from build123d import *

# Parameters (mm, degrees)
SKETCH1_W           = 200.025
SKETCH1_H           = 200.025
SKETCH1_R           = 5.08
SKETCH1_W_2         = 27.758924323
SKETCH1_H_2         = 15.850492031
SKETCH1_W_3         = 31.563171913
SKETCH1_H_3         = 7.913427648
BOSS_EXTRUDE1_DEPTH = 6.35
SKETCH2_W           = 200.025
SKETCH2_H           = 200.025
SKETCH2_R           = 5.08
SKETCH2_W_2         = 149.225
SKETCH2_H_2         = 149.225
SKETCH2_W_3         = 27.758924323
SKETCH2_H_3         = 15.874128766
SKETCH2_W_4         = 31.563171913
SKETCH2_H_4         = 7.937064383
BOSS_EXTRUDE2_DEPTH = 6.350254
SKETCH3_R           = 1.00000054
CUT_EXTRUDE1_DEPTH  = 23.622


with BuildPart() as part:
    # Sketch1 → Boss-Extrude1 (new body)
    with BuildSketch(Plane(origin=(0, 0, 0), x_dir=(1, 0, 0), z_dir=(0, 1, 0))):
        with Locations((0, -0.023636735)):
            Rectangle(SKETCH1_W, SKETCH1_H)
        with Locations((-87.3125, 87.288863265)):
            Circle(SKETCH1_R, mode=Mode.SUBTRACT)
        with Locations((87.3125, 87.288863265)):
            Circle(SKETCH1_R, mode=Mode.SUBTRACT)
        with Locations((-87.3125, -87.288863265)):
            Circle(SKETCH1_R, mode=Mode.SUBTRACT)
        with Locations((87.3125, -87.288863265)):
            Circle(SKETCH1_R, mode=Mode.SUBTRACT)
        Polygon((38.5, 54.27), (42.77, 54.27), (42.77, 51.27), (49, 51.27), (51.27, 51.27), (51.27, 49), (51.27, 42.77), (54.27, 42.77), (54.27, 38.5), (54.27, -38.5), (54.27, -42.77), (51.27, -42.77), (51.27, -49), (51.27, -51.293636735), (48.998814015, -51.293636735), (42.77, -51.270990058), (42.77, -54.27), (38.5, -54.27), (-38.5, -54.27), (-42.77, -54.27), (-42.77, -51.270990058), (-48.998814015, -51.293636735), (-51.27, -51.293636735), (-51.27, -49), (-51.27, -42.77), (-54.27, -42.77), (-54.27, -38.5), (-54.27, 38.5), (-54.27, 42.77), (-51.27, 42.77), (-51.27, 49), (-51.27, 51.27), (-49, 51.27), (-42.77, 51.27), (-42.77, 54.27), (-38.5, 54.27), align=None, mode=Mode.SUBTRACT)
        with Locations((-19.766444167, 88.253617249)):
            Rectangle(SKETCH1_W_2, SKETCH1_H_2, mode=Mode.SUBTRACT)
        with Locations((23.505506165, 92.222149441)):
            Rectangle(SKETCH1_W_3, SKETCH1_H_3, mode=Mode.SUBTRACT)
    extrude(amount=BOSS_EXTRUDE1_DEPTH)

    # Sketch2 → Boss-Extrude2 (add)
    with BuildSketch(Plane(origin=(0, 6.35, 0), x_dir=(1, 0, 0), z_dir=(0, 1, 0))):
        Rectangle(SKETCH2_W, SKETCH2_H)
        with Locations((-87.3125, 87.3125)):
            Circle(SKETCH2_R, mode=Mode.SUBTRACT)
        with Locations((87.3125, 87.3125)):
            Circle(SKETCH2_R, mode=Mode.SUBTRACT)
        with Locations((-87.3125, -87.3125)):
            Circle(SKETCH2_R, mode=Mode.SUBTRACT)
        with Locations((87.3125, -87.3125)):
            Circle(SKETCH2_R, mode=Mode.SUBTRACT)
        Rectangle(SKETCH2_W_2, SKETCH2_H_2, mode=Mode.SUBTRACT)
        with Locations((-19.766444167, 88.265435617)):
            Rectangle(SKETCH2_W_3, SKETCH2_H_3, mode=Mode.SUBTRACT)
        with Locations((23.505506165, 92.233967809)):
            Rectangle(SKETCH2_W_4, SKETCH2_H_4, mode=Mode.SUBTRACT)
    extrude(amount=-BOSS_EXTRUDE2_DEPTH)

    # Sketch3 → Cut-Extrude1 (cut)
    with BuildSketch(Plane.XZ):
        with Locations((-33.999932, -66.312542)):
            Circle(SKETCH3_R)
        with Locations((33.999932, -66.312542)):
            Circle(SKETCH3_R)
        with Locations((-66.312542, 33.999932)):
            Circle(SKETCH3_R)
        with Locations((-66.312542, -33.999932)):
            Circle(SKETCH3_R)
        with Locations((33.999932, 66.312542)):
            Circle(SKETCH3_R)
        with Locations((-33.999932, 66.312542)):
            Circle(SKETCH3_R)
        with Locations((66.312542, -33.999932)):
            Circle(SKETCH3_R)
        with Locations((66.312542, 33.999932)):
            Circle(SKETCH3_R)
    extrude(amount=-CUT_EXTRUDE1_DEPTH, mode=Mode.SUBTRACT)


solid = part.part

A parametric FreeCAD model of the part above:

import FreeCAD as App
import Part
import Sketcher
Q = App.Units.Quantity

doc = App.newDocument("Part")
body = doc.addObject("PartDesign::Body", "Body")

# Sketch on XZ plane
sketch1 = body.newObject("Sketcher::SketchObject", "Sketch")
sketch1.AttachmentSupport = (doc.getObject("XZ_Plane"), [""])
sketch1.MapMode = "FlatFace"
sketch1.addGeometry([
    Part.LineSegment(App.Vector(-100, -100, 0), App.Vector(-100, 100, 0)),  # 0
    Part.LineSegment(App.Vector(-100, 100, 0), App.Vector(100, 100, 0)),  # 1
    Part.LineSegment(App.Vector(100, 100, 0), App.Vector(100, -100, 0)),  # 2
    Part.LineSegment(App.Vector(100, -100, 0), App.Vector(-100, -100, 0)),  # 3
    Part.Circle(App.Vector(-87.3, 87.3, 0), App.Vector(0, 0, 1), 5.1),  # 4
    Part.Circle(App.Vector(87.3, 87.3, 0), App.Vector(0, 0, 1), 5.1),  # 5
    Part.LineSegment(App.Vector(-42.8, -54.3, 0), App.Vector(42.8, -54.3, 0)),  # 6
    Part.LineSegment(App.Vector(42.8, -54.3, 0), App.Vector(42.8, -51.3, 0)),  # 7
    Part.LineSegment(App.Vector(42.8, -51.3, 0), App.Vector(51.3, -51.3, 0)),  # 8
    Part.LineSegment(App.Vector(51.3, -51.3, 0), App.Vector(51.3, -42.8, 0)),  # 9
    Part.LineSegment(App.Vector(51.3, -42.8, 0), App.Vector(54.3, -42.8, 0)),  # 10
    Part.LineSegment(App.Vector(54.3, -42.8, 0), App.Vector(54.3, 42.8, 0)),  # 11
    Part.LineSegment(App.Vector(54.3, 42.8, 0), App.Vector(51.3, 42.8, 0)),  # 12
    Part.LineSegment(App.Vector(51.3, 42.8, 0), App.Vector(51.3, 51.3, 0)),  # 13
    Part.LineSegment(App.Vector(51.3, 51.3, 0), App.Vector(49, 51.3, 0)),  # 14
    Part.LineSegment(App.Vector(49, 51.3, 0), App.Vector(42.8, 51.3, 0)),  # 15
    Part.LineSegment(App.Vector(42.8, 51.3, 0), App.Vector(42.8, 54.3, 0)),  # 16
    Part.LineSegment(App.Vector(42.8, 54.3, 0), App.Vector(-42.8, 54.3, 0)),  # 17
    Part.LineSegment(App.Vector(-42.8, 54.3, 0), App.Vector(-42.8, 51.3, 0)),  # 18
    Part.LineSegment(App.Vector(-42.8, 51.3, 0), App.Vector(-49, 51.3, 0)),  # 19
    Part.LineSegment(App.Vector(-49, 51.3, 0), App.Vector(-51.3, 51.3, 0)),  # 20
    Part.LineSegment(App.Vector(-51.3, 51.3, 0), App.Vector(-51.3, 42.8, 0)),  # 21
    Part.LineSegment(App.Vector(-51.3, 42.8, 0), App.Vector(-54.3, 42.8, 0)),  # 22
    Part.LineSegment(App.Vector(-54.3, 42.8, 0), App.Vector(-54.3, -42.8, 0)),  # 23
    Part.LineSegment(App.Vector(-54.3, -42.8, 0), App.Vector(-51.3, -42.8, 0)),  # 24
    Part.LineSegment(App.Vector(-51.3, -42.8, 0), App.Vector(-51.3, -51.3, 0)),  # 25
    Part.LineSegment(App.Vector(-51.3, -51.3, 0), App.Vector(-42.8, -51.3, 0)),  # 26
    Part.LineSegment(App.Vector(-42.8, -51.3, 0), App.Vector(-42.8, -54.3, 0)),  # 27
    Part.Circle(App.Vector(-87.3, -87.3, 0), App.Vector(0, 0, 1), 5.1),  # 28
    Part.LineSegment(App.Vector(-5.9, -80.3, 0), App.Vector(-33.6, -80.3, 0)),  # 29
    Part.LineSegment(App.Vector(-33.6, -80.3, 0), App.Vector(-33.6, -96.2, 0)),  # 30
    Part.LineSegment(App.Vector(-33.6, -96.2, 0), App.Vector(-5.9, -96.2, 0)),  # 31
    Part.LineSegment(App.Vector(-5.9, -96.2, 0), App.Vector(-5.9, -80.3, 0)),  # 32
    Part.LineSegment(App.Vector(39.3, -88.3, 0), App.Vector(7.7, -88.3, 0)),  # 33
    Part.LineSegment(App.Vector(7.7, -88.3, 0), App.Vector(7.7, -96.2, 0)),  # 34
    Part.LineSegment(App.Vector(7.7, -96.2, 0), App.Vector(39.3, -96.2, 0)),  # 35
    Part.LineSegment(App.Vector(39.3, -96.2, 0), App.Vector(39.3, -88.3, 0)),  # 36
    Part.Circle(App.Vector(87.3, -87.3, 0), App.Vector(0, 0, 1), 5.1),  # 37
], False)
sketch1.addConstraint([
    Sketcher.Constraint("Coincident", 0, 2, 1, 1),
    Sketcher.Constraint("Coincident", 1, 2, 2, 1),
    Sketcher.Constraint("Coincident", 2, 2, 3, 1),
    Sketcher.Constraint("Coincident", 3, 2, 0, 1),
    Sketcher.Constraint("Coincident", 6, 2, 7, 1),
    Sketcher.Constraint("Coincident", 7, 2, 8, 1),
    Sketcher.Constraint("Coincident", 8, 2, 9, 1),
    Sketcher.Constraint("Coincident", 9, 2, 10, 1),
    Sketcher.Constraint("Coincident", 10, 2, 11, 1),
    Sketcher.Constraint("Coincident", 11, 2, 12, 1),
    Sketcher.Constraint("Coincident", 12, 2, 13, 1),
    Sketcher.Constraint("Coincident", 13, 2, 14, 1),
    Sketcher.Constraint("Coincident", 14, 2, 15, 1),
    Sketcher.Constraint("Coincident", 15, 2, 16, 1),
    Sketcher.Constraint("Coincident", 16, 2, 17, 1),
    Sketcher.Constraint("Coincident", 17, 2, 18, 1),
    Sketcher.Constraint("Coincident", 18, 2, 19, 1),
    Sketcher.Constraint("Coincident", 19, 2, 20, 1),
    Sketcher.Constraint("Coincident", 20, 2, 21, 1),
    Sketcher.Constraint("Coincident", 21, 2, 22, 1),
    Sketcher.Constraint("Coincident", 22, 2, 23, 1),
    Sketcher.Constraint("Coincident", 23, 2, 24, 1),
    Sketcher.Constraint("Coincident", 24, 2, 25, 1),
    Sketcher.Constraint("Coincident", 25, 2, 26, 1),
    Sketcher.Constraint("Coincident", 26, 2, 27, 1),
    Sketcher.Constraint("Coincident", 27, 2, 6, 1),
    Sketcher.Constraint("Coincident", 29, 2, 30, 1),
    Sketcher.Constraint("Coincident", 30, 2, 31, 1),
    Sketcher.Constraint("Coincident", 31, 2, 32, 1),
    Sketcher.Constraint("Coincident", 32, 2, 29, 1),
    Sketcher.Constraint("Coincident", 33, 2, 34, 1),
    Sketcher.Constraint("Coincident", 34, 2, 35, 1),
    Sketcher.Constraint("Coincident", 35, 2, 36, 1),
    Sketcher.Constraint("Coincident", 36, 2, 33, 1),
    Sketcher.Constraint("Vertical", 0),
    Sketcher.Constraint("Horizontal", 1),
    Sketcher.Constraint("Vertical", 2),
    Sketcher.Constraint("Horizontal", 3),
    Sketcher.Constraint("Horizontal", 6),
    Sketcher.Constraint("Vertical", 7),
    Sketcher.Constraint("Horizontal", 8),
    Sketcher.Constraint("Vertical", 9),
    Sketcher.Constraint("Horizontal", 10),
    Sketcher.Constraint("Vertical", 11),
    Sketcher.Constraint("Horizontal", 12),
    Sketcher.Constraint("Vertical", 13),
    Sketcher.Constraint("Horizontal", 14),
    Sketcher.Constraint("Vertical", 16),
    Sketcher.Constraint("Horizontal", 17),
    Sketcher.Constraint("Vertical", 18),
    Sketcher.Constraint("Horizontal", 20),
    Sketcher.Constraint("Vertical", 21),
    Sketcher.Constraint("Horizontal", 22),
    Sketcher.Constraint("Vertical", 23),
    Sketcher.Constraint("Horizontal", 24),
    Sketcher.Constraint("Vertical", 25),
    Sketcher.Constraint("Horizontal", 26),
    Sketcher.Constraint("Vertical", 27),
    Sketcher.Constraint("Horizontal", 29),
    Sketcher.Constraint("Vertical", 30),
    Sketcher.Constraint("Horizontal", 31),
    Sketcher.Constraint("Vertical", 32),
    Sketcher.Constraint("Horizontal", 33),
    Sketcher.Constraint("Vertical", 34),
    Sketcher.Constraint("Horizontal", 35),
    Sketcher.Constraint("Vertical", 36),
    Sketcher.Constraint("Equal", 4, 5),
    Sketcher.Constraint("Equal", 5, 28),
    Sketcher.Constraint("Equal", 28, 37),
    Sketcher.Constraint("Symmetric", 5, 3, 28, 3, -1, 1),
    Sketcher.Constraint("Symmetric", 4, 3, 37, 3, -1, 1),
    Sketcher.Constraint("Symmetric", 6, 2, 17, 2, -1, 1),
    Sketcher.Constraint("Symmetric", 9, 2, 21, 2, -1, 1),
    Sketcher.Constraint("Symmetric", 11, 2, 23, 2, -1, 1),
    Sketcher.Constraint("Symmetric", 4, 3, 5, 3, -2),
    Sketcher.Constraint("Symmetric", 15, 2, 18, 2, -2),
    Sketcher.Constraint("Symmetric", 14, 2, 19, 2, -2),
    Sketcher.Constraint("Symmetric", 12, 2, 21, 2, -2),
    Sketcher.Constraint("Symmetric", 8, 2, 25, 2, -2),
    Sketcher.Constraint("Horizontal", 31, 2, 34, 2),
    Sketcher.Constraint("Vertical", 18, 2, 26, 2),
    Sketcher.Constraint("Equal", 3, 0),
    Sketcher.Constraint("Equal", 24, 7),
    Sketcher.Constraint("Equal", 26, 9),
    Sketcher.Constraint("Equal", 17, 11),
    Sketcher.Constraint("Diameter", 4, Q("0.4 in")),
    Sketcher.Constraint("DistanceX", 0, 2, 4, 3, Q("0.5 in")),
    Sketcher.Constraint("DistanceX", 5, 3, 1, 2, Q("0.5 in")),
    Sketcher.Constraint("DistanceY", 2, 2, 37, 3, Q("0.5 in")),
    Sketcher.Constraint("DistanceX", 1, 1, 1, 2, Q("7.875 in")),
    Sketcher.Constraint("DistanceY", 30, 2, 28, 3, Q("0.35 in")),
    Sketcher.Constraint("DistanceX", 6, 1, 6, 2, Q("85.54 mm")),
    Sketcher.Constraint("DistanceX", 8, 1, 8, 2, Q("8.5 mm")),
    Sketcher.Constraint("DistanceX", 10, 1, 10, 2, Q("3 mm")),
    Sketcher.Constraint("DistanceX", 33, 2, 33, 1, Q("31.563172 mm")),
    Sketcher.Constraint("DistanceY", 16, 1, 16, 2, Q("2.99901 mm")),
    Sketcher.Constraint("DistanceY", 13, 2, 1, 2, Q("48.7425 mm")),
    Sketcher.Constraint("DistanceX", 14, 2, 14, 1, Q("2.271186 mm")),
    Sketcher.Constraint("DistanceX", 29, 2, 29, 1, Q("27.758924 mm")),
    Sketcher.Constraint("DistanceY", 13, 1, 13, 2, Q("8.523637 mm")),
    Sketcher.Constraint("DistanceY", 30, 2, 30, 1, Q("15.850492 mm")),
    Sketcher.Constraint("DistanceY", 34, 2, 34, 1, Q("7.913428 mm")),
    Sketcher.Constraint("DistanceX", -1, 1, 33, 2, Q("7.72392 mm")),
    Sketcher.Constraint("DistanceX", 29, 2, -1, 1, Q("33.645906 mm")),
])
pad1 = body.newObject("PartDesign::Pad", "Pad")
pad1.Profile = sketch1
pad1.Length = Q("0.25 in")
pad1.Reversed = True

# Sketch on XZ plane
sketch2 = body.newObject("Sketcher::SketchObject", "Sketch001")
sketch2.AttachmentSupport = (doc.getObject("XZ_Plane"), [""])
sketch2.MapMode = "FlatFace"
sketch2.AttachmentOffset = App.Placement(App.Vector(0, 0, -0.25 * 25.4), App.Rotation())
sketch2.addGeometry([
    Part.LineSegment(App.Vector(-100, -100, 0), App.Vector(-100, 100, 0)),  # 0
    Part.LineSegment(App.Vector(-100, 100, 0), App.Vector(100, 100, 0)),  # 1
    Part.LineSegment(App.Vector(100, 100, 0), App.Vector(100, -100, 0)),  # 2
    Part.LineSegment(App.Vector(100, -100, 0), App.Vector(-100, -100, 0)),  # 3
    Part.Circle(App.Vector(-87, 87, 0), App.Vector(0, 0, 1), 5),  # 4
    Part.Circle(App.Vector(87, 87, 0), App.Vector(0, 0, 1), 5),  # 5
    Part.LineSegment(App.Vector(75, 75, 0), App.Vector(-75, 75, 0)),  # 6
    Part.LineSegment(App.Vector(-75, 75, 0), App.Vector(-75, -75, 0)),  # 7
    Part.LineSegment(App.Vector(-75, -75, 0), App.Vector(75, -75, 0)),  # 8
    Part.LineSegment(App.Vector(75, -75, 0), App.Vector(75, 75, 0)),  # 9
    Part.Circle(App.Vector(-87, -87, 0), App.Vector(0, 0, 1), 5),  # 10
    Part.LineSegment(App.Vector(-6, -80, 0), App.Vector(-34, -80, 0)),  # 11
    Part.LineSegment(App.Vector(-34, -80, 0), App.Vector(-34, -96, 0)),  # 12
    Part.LineSegment(App.Vector(-34, -96, 0), App.Vector(-6, -96, 0)),  # 13
    Part.LineSegment(App.Vector(-6, -96, 0), App.Vector(-6, -80, 0)),  # 14
    Part.LineSegment(App.Vector(39, -88, 0), App.Vector(8, -88, 0)),  # 15
    Part.LineSegment(App.Vector(8, -88, 0), App.Vector(8, -96, 0)),  # 16
    Part.LineSegment(App.Vector(8, -96, 0), App.Vector(39, -96, 0)),  # 17
    Part.LineSegment(App.Vector(39, -96, 0), App.Vector(39, -88, 0)),  # 18
    Part.Circle(App.Vector(87, -87, 0), App.Vector(0, 0, 1), 5),  # 19
], False)
sketch2.addConstraint([
    Sketcher.Constraint("Coincident", 0, 2, 1, 1),
    Sketcher.Constraint("Coincident", 1, 2, 2, 1),
    Sketcher.Constraint("Coincident", 2, 2, 3, 1),
    Sketcher.Constraint("Coincident", 3, 2, 0, 1),
    Sketcher.Constraint("Coincident", 6, 2, 7, 1),
    Sketcher.Constraint("Coincident", 7, 2, 8, 1),
    Sketcher.Constraint("Coincident", 8, 2, 9, 1),
    Sketcher.Constraint("Coincident", 9, 2, 6, 1),
    Sketcher.Constraint("Coincident", 11, 2, 12, 1),
    Sketcher.Constraint("Coincident", 12, 2, 13, 1),
    Sketcher.Constraint("Coincident", 13, 2, 14, 1),
    Sketcher.Constraint("Coincident", 14, 2, 11, 1),
    Sketcher.Constraint("Coincident", 15, 2, 16, 1),
    Sketcher.Constraint("Coincident", 16, 2, 17, 1),
    Sketcher.Constraint("Coincident", 17, 2, 18, 1),
    Sketcher.Constraint("Coincident", 18, 2, 15, 1),
    Sketcher.Constraint("Vertical", 0),
    Sketcher.Constraint("Horizontal", 1),
    Sketcher.Constraint("Vertical", 2),
    Sketcher.Constraint("Horizontal", 3),
    Sketcher.Constraint("Horizontal", 6),
    Sketcher.Constraint("Vertical", 7),
    Sketcher.Constraint("Horizontal", 8),
    Sketcher.Constraint("Vertical", 9),
    Sketcher.Constraint("Horizontal", 11),
    Sketcher.Constraint("Vertical", 12),
    Sketcher.Constraint("Horizontal", 13),
    Sketcher.Constraint("Vertical", 14),
    Sketcher.Constraint("Horizontal", 15),
    Sketcher.Constraint("Vertical", 16),
    Sketcher.Constraint("Horizontal", 17),
    Sketcher.Constraint("Vertical", 18),
    Sketcher.Constraint("Equal", 4, 5),
    Sketcher.Constraint("Equal", 5, 10),
    Sketcher.Constraint("Equal", 10, 19),
    Sketcher.Constraint("Symmetric", 5, 3, 10, 3, -1, 1),
    Sketcher.Constraint("Symmetric", 4, 3, 19, 3, -1, 1),
    Sketcher.Constraint("Symmetric", 0, 2, 2, 2, -1, 1),
    Sketcher.Constraint("Symmetric", 6, 2, 8, 2, -1, 1),
    Sketcher.Constraint("Symmetric", 4, 3, 5, 3, -2),
    Sketcher.Constraint("Horizontal", 13, 2, 16, 2),
    Sketcher.Constraint("Equal", 3, 0),
    Sketcher.Constraint("Equal", 8, 7),
    Sketcher.Constraint("Diameter", 4, Q("0.4 in")),
    Sketcher.Constraint("DistanceX", 0, 2, 6, 2, Q("1 in")),
    Sketcher.Constraint("DistanceX", 0, 2, 4, 3, Q("0.5 in")),
    Sketcher.Constraint("DistanceY", 4, 3, 0, 2, Q("0.5 in")),
    Sketcher.Constraint("DistanceX", 1, 1, 1, 2, Q("7.875 in")),
    Sketcher.Constraint("DistanceY", 12, 2, 7, 2, Q("0.85 in")),
    Sketcher.Constraint("DistanceX", 15, 2, 15, 1, Q("31.563172 mm")),
    Sketcher.Constraint("DistanceY", 12, 2, 12, 1, Q("15.874129 mm")),
    Sketcher.Constraint("DistanceX", 11, 2, 11, 1, Q("27.758924 mm")),
    Sketcher.Constraint("DistanceY", 16, 2, 16, 1, Q("7.937064 mm")),
    Sketcher.Constraint("DistanceX", -1, 1, 15, 2, Q("7.72392 mm")),
    Sketcher.Constraint("DistanceX", 11, 2, -1, 1, Q("33.645906 mm")),
])
pad2 = body.newObject("PartDesign::Pad", "Pad001")
pad2.Profile = sketch2
pad2.Length = 6.350254

# Sketch on XZ plane
sketch3 = body.newObject("Sketcher::SketchObject", "Sketch002")
sketch3.AttachmentSupport = (doc.getObject("XZ_Plane"), [""])
sketch3.MapMode = "FlatFace"
sketch3.addGeometry([
    Part.Circle(App.Vector(-34, -66.3, 0), App.Vector(0, 0, 1), 1),  # 0
    Part.Circle(App.Vector(34, -66.3, 0), App.Vector(0, 0, 1), 1),  # 1
    Part.Circle(App.Vector(-66.3, 34, 0), App.Vector(0, 0, 1), 1),  # 2
    Part.Circle(App.Vector(-66.3, -34, 0), App.Vector(0, 0, 1), 1),  # 3
    Part.Circle(App.Vector(34, 66.3, 0), App.Vector(0, 0, 1), 1),  # 4
    Part.Circle(App.Vector(-34, 66.3, 0), App.Vector(0, 0, 1), 1),  # 5
    Part.Circle(App.Vector(66.3, -34, 0), App.Vector(0, 0, 1), 1),  # 6
    Part.Circle(App.Vector(66.3, 34, 0), App.Vector(0, 0, 1), 1),  # 7
], False)
sketch3.addConstraint([
    Sketcher.Constraint("Equal", 0, 1),
    Sketcher.Constraint("Equal", 1, 2),
    Sketcher.Constraint("Equal", 2, 3),
    Sketcher.Constraint("Equal", 3, 4),
    Sketcher.Constraint("Equal", 4, 5),
    Sketcher.Constraint("Equal", 5, 6),
    Sketcher.Constraint("Equal", 6, 7),
    Sketcher.Constraint("Symmetric", 0, 3, 4, 3, -1, 1),
    Sketcher.Constraint("Symmetric", 1, 3, 5, 3, -1, 1),
    Sketcher.Constraint("Symmetric", 2, 3, 6, 3, -1, 1),
    Sketcher.Constraint("Symmetric", 3, 3, 7, 3, -1, 1),
    Sketcher.Constraint("Symmetric", 0, 3, 1, 3, -2),
    Sketcher.Constraint("Symmetric", 3, 3, 6, 3, -2),
    Sketcher.Constraint("Diameter", 0, Q("2.000001 mm")),
    Sketcher.Constraint("DistanceY", 0, 3, -1, 1, Q("66.312542 mm")),
    Sketcher.Constraint("DistanceX", 2, 3, -1, 1, Q("66.312542 mm")),
    Sketcher.Constraint("DistanceX", 2, 3, 0, 3, Q("32.31261 mm")),
    Sketcher.Constraint("DistanceY", 0, 3, 3, 3, Q("32.31261 mm")),
])
pocket1 = body.newObject("PartDesign::Pocket", "Pocket")
pocket1.Profile = sketch3
pocket1.Length = Q("0.93 in")

doc.recompute()
